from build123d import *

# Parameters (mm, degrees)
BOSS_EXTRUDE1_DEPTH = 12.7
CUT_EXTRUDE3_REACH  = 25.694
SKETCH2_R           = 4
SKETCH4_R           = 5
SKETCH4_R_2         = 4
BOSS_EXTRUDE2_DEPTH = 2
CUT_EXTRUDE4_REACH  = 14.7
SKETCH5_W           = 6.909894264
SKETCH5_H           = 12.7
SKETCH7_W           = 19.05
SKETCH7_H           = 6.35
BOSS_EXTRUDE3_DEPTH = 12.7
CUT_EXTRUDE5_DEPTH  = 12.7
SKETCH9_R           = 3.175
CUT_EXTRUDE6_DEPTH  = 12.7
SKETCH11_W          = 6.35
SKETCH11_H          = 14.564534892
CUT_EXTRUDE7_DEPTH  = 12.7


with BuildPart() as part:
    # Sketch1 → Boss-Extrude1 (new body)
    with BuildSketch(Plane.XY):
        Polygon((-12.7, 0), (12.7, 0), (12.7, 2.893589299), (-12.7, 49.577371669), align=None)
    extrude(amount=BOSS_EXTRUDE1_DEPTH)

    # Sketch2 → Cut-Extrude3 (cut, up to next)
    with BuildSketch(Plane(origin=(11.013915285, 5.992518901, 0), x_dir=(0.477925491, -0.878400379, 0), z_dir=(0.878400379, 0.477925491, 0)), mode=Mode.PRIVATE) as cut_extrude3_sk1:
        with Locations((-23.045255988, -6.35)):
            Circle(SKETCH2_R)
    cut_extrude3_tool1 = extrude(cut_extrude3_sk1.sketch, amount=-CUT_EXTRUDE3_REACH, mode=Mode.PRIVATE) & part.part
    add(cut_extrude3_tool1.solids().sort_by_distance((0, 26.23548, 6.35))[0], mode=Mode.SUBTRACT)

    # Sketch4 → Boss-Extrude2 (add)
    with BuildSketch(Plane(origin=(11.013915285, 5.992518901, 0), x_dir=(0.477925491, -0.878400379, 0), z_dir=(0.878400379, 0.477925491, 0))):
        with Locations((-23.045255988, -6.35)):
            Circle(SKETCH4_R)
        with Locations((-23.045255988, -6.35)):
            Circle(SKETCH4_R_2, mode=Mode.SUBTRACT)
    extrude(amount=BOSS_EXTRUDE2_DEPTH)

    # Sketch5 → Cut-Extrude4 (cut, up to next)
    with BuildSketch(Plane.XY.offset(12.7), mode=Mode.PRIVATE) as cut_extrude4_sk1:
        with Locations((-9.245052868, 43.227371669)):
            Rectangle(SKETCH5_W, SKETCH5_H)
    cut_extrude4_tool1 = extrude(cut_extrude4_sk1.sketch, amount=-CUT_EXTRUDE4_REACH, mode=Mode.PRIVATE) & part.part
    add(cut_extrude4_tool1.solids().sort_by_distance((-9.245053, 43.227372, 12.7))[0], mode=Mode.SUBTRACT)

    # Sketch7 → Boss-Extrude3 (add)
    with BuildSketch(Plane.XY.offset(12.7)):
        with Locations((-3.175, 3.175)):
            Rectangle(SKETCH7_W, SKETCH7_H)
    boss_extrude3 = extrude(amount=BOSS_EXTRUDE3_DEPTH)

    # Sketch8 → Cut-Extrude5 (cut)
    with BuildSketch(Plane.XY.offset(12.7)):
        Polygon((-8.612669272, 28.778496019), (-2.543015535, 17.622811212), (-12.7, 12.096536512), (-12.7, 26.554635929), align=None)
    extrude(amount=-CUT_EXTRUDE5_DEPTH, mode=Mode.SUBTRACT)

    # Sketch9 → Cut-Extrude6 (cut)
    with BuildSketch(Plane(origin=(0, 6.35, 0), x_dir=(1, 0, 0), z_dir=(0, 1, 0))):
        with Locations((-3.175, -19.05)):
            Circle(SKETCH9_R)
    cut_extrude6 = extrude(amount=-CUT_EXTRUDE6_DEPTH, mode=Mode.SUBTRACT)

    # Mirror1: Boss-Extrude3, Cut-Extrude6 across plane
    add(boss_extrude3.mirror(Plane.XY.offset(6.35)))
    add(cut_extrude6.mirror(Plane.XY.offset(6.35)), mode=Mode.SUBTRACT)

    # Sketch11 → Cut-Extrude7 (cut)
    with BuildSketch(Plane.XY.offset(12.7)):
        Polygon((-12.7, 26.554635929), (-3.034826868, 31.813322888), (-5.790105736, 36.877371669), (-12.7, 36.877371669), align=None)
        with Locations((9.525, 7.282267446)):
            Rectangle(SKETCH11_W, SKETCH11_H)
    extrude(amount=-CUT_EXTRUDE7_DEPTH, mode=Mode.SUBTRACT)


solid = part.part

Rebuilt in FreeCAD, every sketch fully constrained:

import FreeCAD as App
import Part
import Sketcher
Q = App.Units.Quantity

doc = App.newDocument("Part")
body = doc.addObject("PartDesign::Body", "Body")

# Sketch on XY plane
sketch1 = body.newObject("Sketcher::SketchObject", "Sketch")
sketch1.AttachmentSupport = (doc.getObject("XY_Plane"), [""])
sketch1.MapMode = "FlatFace"
sketch1.addGeometry(Part.LineSegment(App.Vector(-12.7, 0, 0), App.Vector(12.7, 0, 0)), False)
sketch1.addGeometry(Part.LineSegment(App.Vector(12.7, 0, 0), App.Vector(12.7, 2.9, 0)), False)
sketch1.addGeometry(Part.LineSegment(App.Vector(12.7, 2.9, 0), App.Vector(-12.7, 49.6, 0)), False)
sketch1.addGeometry(Part.LineSegment(App.Vector(-12.7, 49.6, 0), App.Vector(-12.7, 0, 0)), False)
sketch1.addConstraint(Sketcher.Constraint("Coincident", 0, 2, 1, 1))
sketch1.addConstraint(Sketcher.Constraint("Coincident", 1, 2, 2, 1))
sketch1.addConstraint(Sketcher.Constraint("Coincident", 2, 2, 3, 1))
sketch1.addConstraint(Sketcher.Constraint("Coincident", 3, 2, 0, 1))
sketch1.addConstraint(Sketcher.Constraint("Horizontal", 0))
sketch1.addConstraint(Sketcher.Constraint("Vertical", 1))
sketch1.addConstraint(Sketcher.Constraint("Vertical", 3))
sketch1.addConstraint(Sketcher.Constraint("Symmetric", 0, 2, 3, 2, -1, 1))
sketch1.addConstraint(Sketcher.Constraint("DistanceX", 0, 1, 0, 2, Q("1 in")))
sketch1.addConstraint(Sketcher.Constraint("Angle", 2, Q("118.55 deg")))
sketch1.addConstraint(Sketcher.Constraint("DistanceY", 1, 1, 1, 2, Q("2.893589 mm")))
pad1 = body.newObject("PartDesign::Pad", "Pad")
pad1.Profile = sketch1
pad1.Length = Q("0.5 in")

# Sketch on an angled plane
sketch2 = body.newObject("Sketcher::SketchObject", "Sketch001")
sketch2.Placement = App.Placement(App.Vector(11.013915, 5.992519, 0), App.Rotation(App.Vector(0.477925491, -0.878400379, 0), App.Vector(0, 0, -1.000000001), App.Vector(0.878400379, 0.477925491, 0), "ZXY"))
sketch2.addGeometry(Part.Circle(App.Vector(-23, -6.4, 0), App.Vector(0, 0, 1), 4), False)
sketch2.addConstraint(Sketcher.Constraint("Diameter", 0, Q("8 mm")))
sketch2.addConstraint(Sketcher.Constraint("DistanceY", 0, 3, -1, 1, Q("0.25 in")))
sketch2.addConstraint(Sketcher.Constraint("DistanceX", 0, 3, -1, 1, Q("23.045256 mm")))
pocket1 = body.newObject("PartDesign::Pocket", "Pocket")
pocket1.Profile = sketch2
pocket1.Type = "UpToFirst"

# Sketch on an angled plane
sketch3 = body.newObject("Sketcher::SketchObject", "Sketch002")
sketch3.Placement = App.Placement(App.Vector(11.013915, 5.992519, 0), App.Rotation(App.Vector(0.477925491, -0.878400379, 0), App.Vector(0, 0, -1.000000001), App.Vector(0.878400379, 0.477925491, 0), "ZXY"))
sketch3.addGeometry(Part.Circle(App.Vector(-23, -6.4, 0), App.Vector(0, 0, 1), 5), False)
sketch3.addGeometry(Part.Circle(App.Vector(-23, -6.4, 0), App.Vector(0, 0, 1), 4), False)
sketch3.addConstraint(Sketcher.Constraint("Coincident", 1, 3, 0, 3))
sketch3.addConstraint(Sketcher.Constraint("Diameter", 0, Q("10 mm")))
sketch3.addConstraint(Sketcher.Constraint("Diameter", 1, Q("8 mm")))
sketch3.addConstraint(Sketcher.Constraint("DistanceY", 0, 3, -1, 1, Q("0.25 in")))
sketch3.addConstraint(Sketcher.Constraint("DistanceX", 0, 3, -1, 1, Q("23.045256 mm")))
pad2 = body.newObject("PartDesign::Pad", "Pad001")
pad2.Profile = sketch3
pad2.Length = 2

# Sketch on XY plane
sketch4 = body.newObject("Sketcher::SketchObject", "Sketch003")
sketch4.AttachmentSupport = (doc.getObject("XY_Plane"), [""])
sketch4.MapMode = "FlatFace"
sketch4.AttachmentOffset = App.Placement(App.Vector(0, 0, 0.5 * 25.4), App.Rotation())
sketch4.addGeometry(Part.LineSegment(App.Vector(-13, 50, 0), App.Vector(-13, 37, 0)), False)
sketch4.addGeometry(Part.LineSegment(App.Vector(-13, 37, 0), App.Vector(-6, 37, 0)), False)
sketch4.addGeometry(Part.LineSegment(App.Vector(-6, 37, 0), App.Vector(-6, 50, 0)), False)
sketch4.addGeometry(Part.LineSegment(App.Vector(-6, 50, 0), App.Vector(-13, 50, 0)), False)
sketch4.addConstraint(Sketcher.Constraint("Coincident", 0, 2, 1, 1))
sketch4.addConstraint(Sketcher.Constraint("Coincident", 1, 2, 2, 1))
sketch4.addConstraint(Sketcher.Constraint("Coincident", 2, 2, 3, 1))
sketch4.addConstraint(Sketcher.Constraint("Coincident", 3, 2, 0, 1))
sketch4.addConstraint(Sketcher.Constraint("Vertical", 0))
sketch4.addConstraint(Sketcher.Constraint("Horizontal", 1))
sketch4.addConstraint(Sketcher.Constraint("Vertical", 2))
sketch4.addConstraint(Sketcher.Constraint("Horizontal", 3))
sketch4.addConstraint(Sketcher.Constraint("DistanceY", 0, 2, 0, 1, Q("0.5 in")))
sketch4.addConstraint(Sketcher.Constraint("DistanceX", 0, 2, -1, 1, Q("0.5 in")))
sketch4.addConstraint(Sketcher.Constraint("DistanceX", 1, 1, 1, 2, Q("6.909894 mm")))
sketch4.addConstraint(Sketcher.Constraint("DistanceY", -1, 1, 0, 2, Q("36.877372 mm")))
pocket2 = body.newObject("PartDesign::Pocket", "Pocket001")
pocket2.Profile = sketch4
pocket2.Length = Q("0.5 in")

# Sketch on XY plane
sketch5 = body.newObject("Sketcher::SketchObject", "Sketch004")
sketch5.AttachmentSupport = (doc.getObject("XY_Plane"), [""])
sketch5.MapMode = "FlatFace"
sketch5.AttachmentOffset = App.Placement(App.Vector(0, 0, 0.5 * 25.4), App.Rotation())
sketch5.addGeometry(Part.LineSegment(App.Vector(-13, 6, 0), App.Vector(-13, 0, 0)), False)
sketch5.addGeometry(Part.LineSegment(App.Vector(-13, 0, 0), App.Vector(6, 0, 0)), False)
sketch5.addGeometry(Part.LineSegment(App.Vector(6, 0, 0), App.Vector(6, 6, 0)), False)
sketch5.addGeometry(Part.LineSegment(App.Vector(6, 6, 0), App.Vector(-13, 6, 0)), False)
sketch5.addConstraint(Sketcher.Constraint("Coincident", 0, 2, 1, 1))
sketch5.addConstraint(Sketcher.Constraint("Coincident", 1, 2, 2, 1))
sketch5.addConstraint(Sketcher.Constraint("Coincident", 2, 2, 3, 1))
sketch5.addConstraint(Sketcher.Constraint("Coincident", 3, 2, 0, 1))
sketch5.addConstraint(Sketcher.Constraint("Vertical", 0))
sketch5.addConstraint(Sketcher.Constraint("Horizontal", 1))
sketch5.addConstraint(Sketcher.Constraint("Vertical", 2))
sketch5.addConstraint(Sketcher.Constraint("Horizontal", 3))
sketch5.addConstraint(Sketcher.Constraint("PointOnObject", 0, 2, -1))
sketch5.addConstraint(Sketcher.Constraint("DistanceX", 1, 1, 1, 2, Q("0.75 in")))
sketch5.addConstraint(Sketcher.Constraint("DistanceY", 0, 2, 0, 1, Q("0.25 in")))
sketch5.addConstraint(Sketcher.Constraint("DistanceX", 0, 2, -1, 1, Q("0.5 in")))
pad3 = body.newObject("PartDesign::Pad", "Pad002")
pad3.Profile = sketch5
pad3.Length = Q("0.5 in")

# Sketch on XY plane
sketch6 = body.newObject("Sketcher::SketchObject", "Sketch005")
sketch6.AttachmentSupport = (doc.getObject("XY_Plane"), [""])
sketch6.MapMode = "FlatFace"
sketch6.AttachmentOffset = App.Placement(App.Vector(0, 0, 0.5 * 25.4), App.Rotation())
sketch6.addGeometry(Part.LineSegment(App.Vector(-2.5, 17.6, 0), App.Vector(-8.6, 28.8, 0)), False)
sketch6.addGeometry(Part.LineSegment(App.Vector(-8.6, 28.8, 0), App.Vector(-12.7, 26.6, 0)), False)
sketch6.addGeometry(Part.LineSegment(App.Vector(-12.7, 26.6, 0), App.Vector(-12.7, 12.1, 0)), False)
sketch6.addGeometry(Part.LineSegment(App.Vector(-12.7, 12.1, 0), App.Vector(-2.5, 17.6, 0)), False)
sketch6.addConstraint(Sketcher.Constraint("Coincident", 0, 2, 1, 1))
sketch6.addConstraint(Sketcher.Constraint("Coincident", 1, 2, 2, 1))
sketch6.addConstraint(Sketcher.Constraint("Coincident", 2, 2, 3, 1))
sketch6.addConstraint(Sketcher.Constraint("Coincident", 3, 2, 0, 1))
sketch6.addConstraint(Sketcher.Constraint("Vertical", 2))
sketch6.addConstraint(Sketcher.Constraint("Perpendicular", 0, 1))
sketch6.addConstraint(Sketcher.Constraint("Parallel", 1, 3))
sketch6.addConstraint(Sketcher.Constraint("Distance", 0, Q("0.5 in")))
sketch6.addConstraint(Sketcher.Constraint("DistanceX", 1, 2, -1, 1, Q("0.5 in")))
sketch6.addConstraint(Sketcher.Constraint("Angle", 0, Q("118.55 deg")))
sketch6.addConstraint(Sketcher.Constraint("DistanceX", 0, 2, -1, 1, Q("8.612669 mm")))
sketch6.addConstraint(Sketcher.Constraint("DistanceY", -1, 1, 3, 2, Q("17.622811 mm")))
pocket3 = body.newObject("PartDesign::Pocket", "Pocket002")
pocket3.Profile = sketch6
pocket3.Length = Q("0.5 in")

# Sketch on XZ plane
sketch7 = body.newObject("Sketcher::SketchObject", "Sketch006")
sketch7.AttachmentSupport = (doc.getObject("XZ_Plane"), [""])
sketch7.MapMode = "FlatFace"
sketch7.AttachmentOffset = App.Placement(App.Vector(0, 0, -0.25 * 25.4), App.Rotation())
sketch7.addGeometry(Part.Circle(App.Vector(-3.2, 19.1, 0), App.Vector(0, 0, 1), 3.2), False)
sketch7.addConstraint(Sketcher.Constraint("Diameter", 0, Q("0.25 in")))
sketch7.addConstraint(Sketcher.Constraint("DistanceY", -1, 1, 0, 3, Q("0.75 in")))
sketch7.addConstraint(Sketcher.Constraint("DistanceX", 0, 3, -1, 1, Q("0.125 in")))
pocket4 = body.newObject("PartDesign::Pocket", "Pocket003")
pocket4.Profile = sketch7
pocket4.Length = Q("0.5 in")
pocket4.Reversed = True
doc.recompute()

datumplane = body.newObject("PartDesign::Plane", "DatumPlane")
datumplane.AttachmentSupport = (doc.getObject("XY_Plane"), [""])
datumplane.MapMode = "FlatFace"
datumplane.AttachmentOffset = App.Placement(App.Vector(0, 0, 0.25 * 25.4), App.Rotation())
mirrored = body.newObject("PartDesign::Mirrored", "Mirrored")
mirrored.Originals = [pad3, pocket4]
mirrored.MirrorPlane = (datumplane, [""])
body.Tip = mirrored

# Sketch on XY plane
sketch8 = body.newObject("Sketcher::SketchObject", "Sketch007")
sketch8.AttachmentSupport = (doc.getObject("XY_Plane"), [""])
sketch8.MapMode = "FlatFace"
sketch8.AttachmentOffset = App.Placement(App.Vector(0, 0, 0.5 * 25.4), App.Rotation())
sketch8.addGeometry(Part.LineSegment(App.Vector(-13, 27, 0), App.Vector(-3, 32, 0)), False)
sketch8.addGeometry(Part.LineSegment(App.Vector(-3, 32, 0), App.Vector(-6, 37, 0)), False)
sketch8.addGeometry(Part.LineSegment(App.Vector(-6, 37, 0), App.Vector(-13, 37, 0)), False)
sketch8.addGeometry(Part.LineSegment(App.Vector(-13, 37, 0), App.Vector(-13, 27, 0)), False)
sketch8.addGeometry(Part.LineSegment(App.Vector(6, 15, 0), App.Vector(6, 0, 0)), False)
sketch8.addGeometry(Part.LineSegment(App.Vector(6, 0, 0), App.Vector(13, 0, 0)), False)
sketch8.addGeometry(Part.LineSegment(App.Vector(13, 0, 0), App.Vector(13, 15, 0)), False)
sketch8.addGeometry(Part.LineSegment(App.Vector(13, 15, 0), App.Vector(6, 15, 0)), False)
sketch8.addConstraint(Sketcher.Constraint("Coincident", 0, 2, 1, 1))
sketch8.addConstraint(Sketcher.Constraint("Coincident", 1, 2, 2, 1))
sketch8.addConstraint(Sketcher.Constraint("Coincident", 2, 2, 3, 1))
sketch8.addConstraint(Sketcher.Constraint("Coincident", 3, 2, 0, 1))
sketch8.addConstraint(Sketcher.Constraint("Coincident", 4, 2, 5, 1))
sketch8.addConstraint(Sketcher.Constraint("Coincident", 5, 2, 6, 1))
sketch8.addConstraint(Sketcher.Constraint("Coincident", 6, 2, 7, 1))
sketch8.addConstraint(Sketcher.Constraint("Coincident", 7, 2, 4, 1))
sketch8.addConstraint(Sketcher.Constraint("Horizontal", 2))
sketch8.addConstraint(Sketcher.Constraint("Vertical", 3))
sketch8.addConstraint(Sketcher.Constraint("Vertical", 4))
sketch8.addConstraint(Sketcher.Constraint("Horizontal", 5))
sketch8.addConstraint(Sketcher.Constraint("Vertical", 6))
sketch8.addConstraint(Sketcher.Constraint("Horizontal", 7))
sketch8.addConstraint(Sketcher.Constraint("PointOnObject", 4, 2, -1))
sketch8.addConstraint(Sketcher.Constraint("Perpendicular", 0, 1))
sketch8.addConstraint(Sketcher.Constraint("DistanceX", 3, 2, 5, 2, Q("1 in")))
sketch8.addConstraint(Sketcher.Constraint("DistanceX", 5, 1, 5, 2, Q("0.25 in")))
sketch8.addConstraint(Sketcher.Constraint("DistanceX", 2, 2, -1, 1, Q("0.5 in")))
sketch8.addConstraint(Sketcher.Constraint("Angle", 0, Q("28.55 deg")))
sketch8.addConstraint(Sketcher.Constraint("DistanceY", 6, 2, 3, 2, Q("11.990101 mm")))
sketch8.addConstraint(Sketcher.Constraint("Distance", 1, Q("5.76508 mm")))
sketch8.addConstraint(Sketcher.Constraint("DistanceX", 2, 2, 2, 1, Q("6.909894 mm")))
sketch8.addConstraint(Sketcher.Constraint("DistanceY", 4, 2, 4, 1, Q("14.564535 mm")))
pocket5 = body.newObject("PartDesign::Pocket", "Pocket004")
pocket5.Profile = sketch8
pocket5.Length = Q("0.5 in")

doc.recompute()
